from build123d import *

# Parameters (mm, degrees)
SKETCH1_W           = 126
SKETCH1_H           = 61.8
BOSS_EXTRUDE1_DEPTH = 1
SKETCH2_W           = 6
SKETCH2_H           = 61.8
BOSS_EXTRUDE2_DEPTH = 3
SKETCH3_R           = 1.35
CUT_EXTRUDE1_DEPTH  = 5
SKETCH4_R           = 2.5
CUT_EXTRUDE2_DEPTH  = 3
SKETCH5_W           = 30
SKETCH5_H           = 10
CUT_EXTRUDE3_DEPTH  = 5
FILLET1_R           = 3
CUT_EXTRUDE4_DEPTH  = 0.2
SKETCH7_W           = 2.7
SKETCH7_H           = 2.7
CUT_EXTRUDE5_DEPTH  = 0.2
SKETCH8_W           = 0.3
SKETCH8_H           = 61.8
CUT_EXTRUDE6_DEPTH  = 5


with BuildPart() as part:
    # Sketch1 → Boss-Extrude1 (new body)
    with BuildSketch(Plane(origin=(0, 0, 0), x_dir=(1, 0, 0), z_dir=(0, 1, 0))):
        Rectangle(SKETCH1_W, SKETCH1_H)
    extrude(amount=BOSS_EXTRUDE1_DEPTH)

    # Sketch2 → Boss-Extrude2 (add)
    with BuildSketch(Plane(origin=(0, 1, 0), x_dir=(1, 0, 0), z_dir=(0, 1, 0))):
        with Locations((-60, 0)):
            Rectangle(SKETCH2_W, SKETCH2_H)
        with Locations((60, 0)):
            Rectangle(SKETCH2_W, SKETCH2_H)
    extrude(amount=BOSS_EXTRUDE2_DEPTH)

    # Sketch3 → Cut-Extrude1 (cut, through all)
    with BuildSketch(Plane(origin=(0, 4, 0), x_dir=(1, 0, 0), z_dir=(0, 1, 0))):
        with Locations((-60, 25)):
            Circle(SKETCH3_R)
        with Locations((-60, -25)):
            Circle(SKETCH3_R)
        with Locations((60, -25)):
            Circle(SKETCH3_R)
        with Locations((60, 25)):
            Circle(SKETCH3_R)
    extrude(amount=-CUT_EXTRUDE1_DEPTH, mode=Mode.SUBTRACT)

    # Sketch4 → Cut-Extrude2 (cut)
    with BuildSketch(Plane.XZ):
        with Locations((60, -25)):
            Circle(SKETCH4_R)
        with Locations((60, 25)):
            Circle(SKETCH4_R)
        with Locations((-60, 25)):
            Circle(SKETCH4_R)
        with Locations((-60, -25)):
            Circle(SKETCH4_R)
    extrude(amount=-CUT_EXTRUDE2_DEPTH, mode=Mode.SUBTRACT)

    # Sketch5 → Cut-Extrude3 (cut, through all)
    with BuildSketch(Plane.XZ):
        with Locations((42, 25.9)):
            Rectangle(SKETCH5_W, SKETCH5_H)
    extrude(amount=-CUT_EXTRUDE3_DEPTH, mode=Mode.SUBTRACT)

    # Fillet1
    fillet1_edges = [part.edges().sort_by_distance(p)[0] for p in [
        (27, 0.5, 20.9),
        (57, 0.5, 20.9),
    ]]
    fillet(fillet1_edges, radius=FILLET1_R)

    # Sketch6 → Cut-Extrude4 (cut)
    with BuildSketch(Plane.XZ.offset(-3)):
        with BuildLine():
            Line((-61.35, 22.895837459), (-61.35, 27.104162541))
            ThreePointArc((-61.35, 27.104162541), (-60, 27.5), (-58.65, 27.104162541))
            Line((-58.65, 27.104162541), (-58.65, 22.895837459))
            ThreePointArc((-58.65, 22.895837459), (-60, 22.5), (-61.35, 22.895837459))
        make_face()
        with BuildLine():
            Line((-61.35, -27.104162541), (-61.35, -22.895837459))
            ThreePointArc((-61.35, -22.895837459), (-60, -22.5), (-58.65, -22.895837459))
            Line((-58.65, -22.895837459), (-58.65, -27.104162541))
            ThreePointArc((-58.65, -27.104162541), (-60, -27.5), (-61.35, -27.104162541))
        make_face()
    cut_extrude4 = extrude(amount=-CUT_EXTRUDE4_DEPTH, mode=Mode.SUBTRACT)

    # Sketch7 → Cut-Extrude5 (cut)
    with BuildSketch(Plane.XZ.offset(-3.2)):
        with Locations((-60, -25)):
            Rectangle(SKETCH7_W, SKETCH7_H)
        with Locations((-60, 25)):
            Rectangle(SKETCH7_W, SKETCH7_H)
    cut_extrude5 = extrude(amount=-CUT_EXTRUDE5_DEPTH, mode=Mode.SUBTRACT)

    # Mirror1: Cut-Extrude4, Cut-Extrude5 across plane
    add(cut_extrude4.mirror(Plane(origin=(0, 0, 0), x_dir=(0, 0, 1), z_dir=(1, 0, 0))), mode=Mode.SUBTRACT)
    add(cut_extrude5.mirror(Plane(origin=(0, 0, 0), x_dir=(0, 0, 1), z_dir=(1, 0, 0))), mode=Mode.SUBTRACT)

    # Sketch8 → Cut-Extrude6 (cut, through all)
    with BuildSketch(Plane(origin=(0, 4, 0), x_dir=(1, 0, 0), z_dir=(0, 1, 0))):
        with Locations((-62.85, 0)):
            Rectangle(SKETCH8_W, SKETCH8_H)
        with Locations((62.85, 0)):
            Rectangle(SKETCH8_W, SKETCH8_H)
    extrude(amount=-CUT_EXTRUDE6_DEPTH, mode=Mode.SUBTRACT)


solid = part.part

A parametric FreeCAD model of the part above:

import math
import FreeCAD as App
import Part
import Sketcher


def edges_at(feature, points):
    """Names of the edges that pass closest to the given points."""
    edges = feature.Shape.Edges
    near = lambda p: min(range(len(edges)), key=lambda i: edges[i].distToShape(Part.Vertex(*p))[0])
    return sorted({f"Edge{near(p) + 1}" for p in points})


def add_polygon(sketch, points):
    """Adds a closed chain of lines whose ends are joined by coincident constraints."""
    first, n = sketch.GeometryCount, len(points)
    for a, b in zip(points, points[1:] + points[:1]):
        sketch.addGeometry(Part.LineSegment(App.Vector(*a, 0), App.Vector(*b, 0)), False)
    for i in range(n):
        sketch.addConstraint(Sketcher.Constraint("Coincident", first + i, 2, first + (i + 1) % n, 1))

doc = App.newDocument("Part")
body = doc.addObject("PartDesign::Body", "Body")

sketch1 = body.newObject("Sketcher::SketchObject", "Sketch")
sketch1.AttachmentSupport = (doc.getObject("XZ_Plane"), [""])
sketch1.MapMode = "FlatFace"
add_polygon(sketch1, [(-63, -30.9), (-63, 30.9), (63, 30.9), (63, -30.9)])
sketch1.addConstraint([
    Sketcher.Constraint("Vertical", 0),
    Sketcher.Constraint("Horizontal", 1),
    Sketcher.Constraint("Vertical", 2),
    Sketcher.Constraint("Horizontal", 3),
    Sketcher.Constraint("Symmetric", 0, 2, 2, 2, -1, 1),
    Sketcher.Constraint("DistanceX", 1, 1, 1, 2, 126.0),
    Sketcher.Constraint("DistanceY", 0, 1, 0, 2, 61.8),
])
pad1 = body.newObject("PartDesign::Pad", "Pad")
pad1.Profile = sketch1
pad1.Length = 1
pad1.Reversed = True

sketch2 = body.newObject("Sketcher::SketchObject", "Sketch001")
sketch2.AttachmentSupport = (doc.getObject("XZ_Plane"), [""])
sketch2.MapMode = "FlatFace"
sketch2.AttachmentOffset = App.Placement(App.Vector(0, 0, -1), App.Rotation())
add_polygon(sketch2, [(-63, -30.9), (-63, 30.9), (-57, 30.9), (-57, -30.9)])
add_polygon(sketch2, [(57, -30.9), (57, 30.9), (63, 30.9), (63, -30.9)])
sketch2.addConstraint([
    Sketcher.Constraint("Vertical", 0),
    Sketcher.Constraint("Horizontal", 1),
    Sketcher.Constraint("Vertical", 2),
    Sketcher.Constraint("Horizontal", 3),
    Sketcher.Constraint("Vertical", 4),
    Sketcher.Constraint("Horizontal", 5),
    Sketcher.Constraint("Vertical", 6),
    Sketcher.Constraint("Horizontal", 7),
    Sketcher.Constraint("Symmetric", 2, 2, 4, 2, -1, 1),
    Sketcher.Constraint("Symmetric", 0, 2, 6, 2, -1, 1),
    Sketcher.Constraint("Horizontal", 1, 2, 4, 2),
    Sketcher.Constraint("DistanceX", 1, 1, 1, 2, 6.0),
    Sketcher.Constraint("DistanceY", 0, 1, 0, 2, 61.8),
    Sketcher.Constraint("DistanceX", 0, 2, -1, 1, 63.0),
])
pad2 = body.newObject("PartDesign::Pad", "Pad001")
pad2.Profile = sketch2
pad2.Length = 3
pad2.Reversed = True

sketch3 = body.newObject("Sketcher::SketchObject", "Sketch002")
sketch3.AttachmentSupport = (doc.getObject("XZ_Plane"), [""])
sketch3.MapMode = "FlatFace"
sketch3.AttachmentOffset = App.Placement(App.Vector(0, 0, -4), App.Rotation())
sketch3.addGeometry([
    Part.Circle(App.Vector(-60, -25, 0), App.Vector(0, 0, 1), 1.35),
    Part.Circle(App.Vector(-60, 25, 0), App.Vector(0, 0, 1), 1.35),
    Part.Circle(App.Vector(60, 25, 0), App.Vector(0, 0, 1), 1.35),
    Part.Circle(App.Vector(60, -25, 0), App.Vector(0, 0, 1), 1.35),
], False)
sketch3.addConstraint([
    Sketcher.Constraint("Equal", 0, 1),
    Sketcher.Constraint("Equal", 1, 2),
    Sketcher.Constraint("Equal", 2, 3),
    Sketcher.Constraint("Symmetric", 0, 3, 2, 3, -1, 1),
    Sketcher.Constraint("Symmetric", 1, 3, 3, 3, -1, 1),
    Sketcher.Constraint("Symmetric", 1, 3, 2, 3, -2),
    Sketcher.Constraint("Diameter", 0, 2.7),
    Sketcher.Constraint("DistanceX", 0, 3, -1, 1, 60.0),
    Sketcher.Constraint("DistanceY", 0, 3, -1, 1, 25.0),
])
pocket1 = body.newObject("PartDesign::Pocket", "Pocket")
pocket1.Profile = sketch3
pocket1.Type = "ThroughAll"
pocket1.Reversed = True

sketch4 = body.newObject("Sketcher::SketchObject", "Sketch003")
sketch4.AttachmentSupport = (doc.getObject("XZ_Plane"), [""])
sketch4.MapMode = "FlatFace"
sketch4.addGeometry([
    Part.Circle(App.Vector(60, -25, 0), App.Vector(0, 0, 1), 2.5),
    Part.Circle(App.Vector(60, 25, 0), App.Vector(0, 0, 1), 2.5),
    Part.Circle(App.Vector(-60, 25, 0), App.Vector(0, 0, 1), 2.5),
    Part.Circle(App.Vector(-60, -25, 0), App.Vector(0, 0, 1), 2.5),
], False)
sketch4.addConstraint([
    Sketcher.Constraint("Equal", 0, 1),
    Sketcher.Constraint("Equal", 1, 2),
    Sketcher.Constraint("Equal", 2, 3),
    Sketcher.Constraint("Symmetric", 0, 3, 2, 3, -1, 1),
    Sketcher.Constraint("Symmetric", 1, 3, 3, 3, -1, 1),
    Sketcher.Constraint("Symmetric", 1, 3, 2, 3, -2),
    Sketcher.Constraint("Diameter", 0, 5.0),
    Sketcher.Constraint("DistanceX", -1, 1, 0, 3, 60.0),
    Sketcher.Constraint("DistanceY", 0, 3, -1, 1, 25.0),
])
pocket2 = body.newObject("PartDesign::Pocket", "Pocket001")
pocket2.Profile = sketch4
pocket2.Length = 3

sketch5 = body.newObject("Sketcher::SketchObject", "Sketch004")
sketch5.AttachmentSupport = (doc.getObject("XZ_Plane"), [""])
sketch5.MapMode = "FlatFace"
add_polygon(sketch5, [(27, 30.9), (27, 20.9), (57, 20.9), (57, 30.9)])
sketch5.addConstraint([
    Sketcher.Constraint("Vertical", 0),
    Sketcher.Constraint("Horizontal", 1),
    Sketcher.Constraint("Vertical", 2),
    Sketcher.Constraint("Horizontal", 3),
    Sketcher.Constraint("DistanceX", 1, 1, 1, 2, 30.0),
    Sketcher.Constraint("DistanceY", 0, 2, 0, 1, 10.0),
    Sketcher.Constraint("DistanceX", -1, 1, 0, 2, 27.0),
    Sketcher.Constraint("DistanceY", -1, 1, 0, 2, 20.9),
])
pocket3 = body.newObject("PartDesign::Pocket", "Pocket002")
pocket3.Profile = sketch5
pocket3.Type = "ThroughAll"
doc.recompute()

fillet = body.newObject("PartDesign::Fillet", "Fillet")
fillet.Base = (pocket3, edges_at(pocket3, [(27, 0.5, 20.9), (57, 0.5, 20.9)]))
fillet.Radius = 3

sketch6 = body.newObject("Sketcher::SketchObject", "Sketch005")
sketch6.AttachmentSupport = (doc.getObject("XZ_Plane"), [""])
sketch6.MapMode = "FlatFace"
sketch6.AttachmentOffset = App.Placement(App.Vector(0, 0, -3), App.Rotation())
sketch6.addGeometry([
    Part.LineSegment(App.Vector(-61.35, 27.104163, 0), App.Vector(-61.35, 22.895837, 0)),
    Part.ArcOfCircle(Part.Circle(App.Vector(-60, 25, 0), App.Vector(0, 0, 1), 2.5), math.radians(-122.683639), math.radians(-57.316361)),
    Part.LineSegment(App.Vector(-58.65, 22.895837, 0), App.Vector(-58.65, 27.104163, 0)),
    Part.ArcOfCircle(Part.Circle(App.Vector(-60, 25, 0), App.Vector(0, 0, 1), 2.5), math.radians(57.316361), math.radians(122.683639)),
    Part.LineSegment(App.Vector(-61.35, -22.895837, 0), App.Vector(-61.35, -27.104163, 0)),
    Part.ArcOfCircle(Part.Circle(App.Vector(-60, -25, 0), App.Vector(0, 0, 1), 2.5), math.radians(-122.683639), math.radians(-57.316361)),
    Part.LineSegment(App.Vector(-58.65, -27.104163, 0), App.Vector(-58.65, -22.895837, 0)),
    Part.ArcOfCircle(Part.Circle(App.Vector(-60, -25, 0), App.Vector(0, 0, 1), 2.5), math.radians(57.316361), math.radians(122.683639)),
], False)
sketch6.addConstraint([
    Sketcher.Constraint("Coincident", 0, 2, 1, 1),
    Sketcher.Constraint("Coincident", 1, 2, 2, 1),
    Sketcher.Constraint("Coincident", 2, 2, 3, 1),
    Sketcher.Constraint("Coincident", 3, 2, 0, 1),
    Sketcher.Constraint("Coincident", 4, 2, 5, 1),
    Sketcher.Constraint("Coincident", 5, 2, 6, 1),
    Sketcher.Constraint("Coincident", 6, 2, 7, 1),
    Sketcher.Constraint("Coincident", 7, 2, 4, 1),
    Sketcher.Constraint("Vertical", 0),
    Sketcher.Constraint("Vertical", 2),
    Sketcher.Constraint("Vertical", 4),
    Sketcher.Constraint("Vertical", 6),
    Sketcher.Constraint("Coincident", 3, 3, 1, 3),
    Sketcher.Constraint("Coincident", 7, 3, 5, 3),
    Sketcher.Constraint("Equal", 1, 3),
    Sketcher.Constraint("Equal", 3, 5),
    Sketcher.Constraint("Equal", 5, 7),
    Sketcher.Constraint("Symmetric", 1, 3, 5, 3, -1),
    Sketcher.Constraint("Horizontal", 0, 2, 1, 2),
    Sketcher.Constraint("Horizontal", 4, 2, 5, 2),
    Sketcher.Constraint("Vertical", 3, 2, 4, 2),
    Sketcher.Constraint("Radius", 1, 2.5),
    Sketcher.Constraint("DistanceX", 1, 3, -1, 1, 60.0),
    Sketcher.Constraint("DistanceY", -1, 1, 1, 3, 25.0),
    Sketcher.Constraint("DistanceX", 0, 2, 1, 2, 2.7),
])
pocket4 = body.newObject("PartDesign::Pocket", "Pocket003")
pocket4.Profile = sketch6
pocket4.Length = 0.2

sketch7 = body.newObject("Sketcher::SketchObject", "Sketch006")
sketch7.AttachmentSupport = (doc.getObject("XZ_Plane"), [""])
sketch7.MapMode = "FlatFace"
sketch7.AttachmentOffset = App.Placement(App.Vector(0, 0, -3.2), App.Rotation())
add_polygon(sketch7, [(-61.35, -23.65), (-61.35, -26.35), (-58.65, -26.35), (-58.65, -23.65)])
add_polygon(sketch7, [(-61.35, 26.35), (-61.35, 23.65), (-58.65, 23.65), (-58.65, 26.35)])
sketch7.addConstraint([
    Sketcher.Constraint("Vertical", 0),
    Sketcher.Constraint("Horizontal", 1),
    Sketcher.Constraint("Vertical", 2),
    Sketcher.Constraint("Horizontal", 3),
    Sketcher.Constraint("Vertical", 4),
    Sketcher.Constraint("Horizontal", 5),
    Sketcher.Constraint("Vertical", 6),
    Sketcher.Constraint("Horizontal", 7),
    Sketcher.Constraint("Symmetric", 3, 2, 4, 2, -1),
    Sketcher.Constraint("Symmetric", 1, 2, 6, 2, -1),
    Sketcher.Constraint("Equal", 7, 0),
    Sketcher.Constraint("DistanceX", 1, 1, 1, 2, 2.7),
    Sketcher.Constraint("DistanceY", 0, 2, 4, 2, 50.0),
    Sketcher.Constraint("DistanceX", 0, 2, -1, 1, 61.35),
])
pocket5 = body.newObject("PartDesign::Pocket", "Pocket004")
pocket5.Profile = sketch7
pocket5.Length = 0.2
doc.recompute()

mirrored = body.newObject("PartDesign::Mirrored", "Mirrored")
mirrored.Originals = [pocket4, pocket5]
mirrored.MirrorPlane = (doc.getObject("YZ_Plane"), [""])
body.Tip = mirrored

sketch8 = body.newObject("Sketcher::SketchObject", "Sketch007")
sketch8.AttachmentSupport = (doc.getObject("XZ_Plane"), [""])
sketch8.MapMode = "FlatFace"
sketch8.AttachmentOffset = App.Placement(App.Vector(0, 0, -4), App.Rotation())
add_polygon(sketch8, [(-63, -30.9), (-63, 30.9), (-62.7, 30.9), (-62.7, -30.9)])
add_polygon(sketch8, [(62.7, -30.9), (62.7, 30.9), (63, 30.9), (63, -30.9)])
sketch8.addConstraint([
    Sketcher.Constraint("Vertical", 0),
    Sketcher.Constraint("Horizontal", 1),
    Sketcher.Constraint("Vertical", 2),
    Sketcher.Constraint("Horizontal", 3),
    Sketcher.Constraint("Vertical", 4),
    Sketcher.Constraint("Horizontal", 5),
    Sketcher.Constraint("Vertical", 6),
    Sketcher.Constraint("Horizontal", 7),
    Sketcher.Constraint("Symmetric", 2, 2, 4, 2, -1, 1),
    Sketcher.Constraint("Symmetric", 0, 2, 6, 2, -1, 1),
    Sketcher.Constraint("Horizontal", 1, 2, 4, 2),
    Sketcher.Constraint("DistanceX", 1, 1, 1, 2, 0.3),
    Sketcher.Constraint("DistanceY", 0, 1, 0, 2, 61.8),
    Sketcher.Constraint("DistanceX", 0, 2, -1, 1, 63.0),
])
pocket6 = body.newObject("PartDesign::Pocket", "Pocket005")
pocket6.Profile = sketch8
pocket6.Type = "ThroughAll"
pocket6.Reversed = True

doc.recompute()
